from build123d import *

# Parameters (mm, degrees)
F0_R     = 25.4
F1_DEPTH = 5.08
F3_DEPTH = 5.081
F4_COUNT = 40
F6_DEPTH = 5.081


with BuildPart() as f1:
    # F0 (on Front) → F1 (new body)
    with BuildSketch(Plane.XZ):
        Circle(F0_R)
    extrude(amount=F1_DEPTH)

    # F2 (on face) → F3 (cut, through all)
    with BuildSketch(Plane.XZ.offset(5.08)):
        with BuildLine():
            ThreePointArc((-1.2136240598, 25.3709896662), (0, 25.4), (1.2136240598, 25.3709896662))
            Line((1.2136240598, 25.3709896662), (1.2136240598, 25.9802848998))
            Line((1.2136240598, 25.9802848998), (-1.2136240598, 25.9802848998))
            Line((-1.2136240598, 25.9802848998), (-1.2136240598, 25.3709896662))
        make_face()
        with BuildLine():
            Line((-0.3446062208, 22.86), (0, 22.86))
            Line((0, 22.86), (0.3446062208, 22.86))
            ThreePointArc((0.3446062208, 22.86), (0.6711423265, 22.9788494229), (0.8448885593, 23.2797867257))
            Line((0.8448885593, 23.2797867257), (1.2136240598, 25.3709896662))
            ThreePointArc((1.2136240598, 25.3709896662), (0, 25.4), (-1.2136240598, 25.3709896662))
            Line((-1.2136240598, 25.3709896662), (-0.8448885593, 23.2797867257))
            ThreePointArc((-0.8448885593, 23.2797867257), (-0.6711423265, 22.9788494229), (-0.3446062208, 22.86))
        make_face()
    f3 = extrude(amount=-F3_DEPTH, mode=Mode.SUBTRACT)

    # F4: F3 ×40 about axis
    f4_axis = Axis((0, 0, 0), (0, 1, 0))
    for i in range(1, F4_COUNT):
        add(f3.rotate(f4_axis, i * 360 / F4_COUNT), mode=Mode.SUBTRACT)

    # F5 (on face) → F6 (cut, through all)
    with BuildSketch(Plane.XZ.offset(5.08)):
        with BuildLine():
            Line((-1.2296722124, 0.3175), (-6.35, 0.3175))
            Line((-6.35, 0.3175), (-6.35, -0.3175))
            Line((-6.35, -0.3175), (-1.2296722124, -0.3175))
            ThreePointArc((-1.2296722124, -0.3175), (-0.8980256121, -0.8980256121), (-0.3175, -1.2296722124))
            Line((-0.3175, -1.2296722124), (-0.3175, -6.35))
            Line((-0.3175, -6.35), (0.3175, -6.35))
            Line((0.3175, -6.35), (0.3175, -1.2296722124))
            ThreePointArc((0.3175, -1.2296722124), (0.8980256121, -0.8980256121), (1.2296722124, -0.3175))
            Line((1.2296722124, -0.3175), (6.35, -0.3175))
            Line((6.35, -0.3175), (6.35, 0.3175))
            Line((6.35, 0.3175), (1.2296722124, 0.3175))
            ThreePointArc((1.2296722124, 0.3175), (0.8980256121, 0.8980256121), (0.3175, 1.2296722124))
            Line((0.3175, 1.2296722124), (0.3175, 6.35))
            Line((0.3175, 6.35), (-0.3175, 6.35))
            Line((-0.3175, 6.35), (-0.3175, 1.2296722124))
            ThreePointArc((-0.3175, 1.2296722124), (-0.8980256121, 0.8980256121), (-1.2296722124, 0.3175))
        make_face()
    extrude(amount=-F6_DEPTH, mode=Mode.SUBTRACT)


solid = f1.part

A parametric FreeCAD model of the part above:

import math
import FreeCAD as App
import Part
import Sketcher
Q = App.Units.Quantity

doc = App.newDocument("Part")
params = doc.addObject("Spreadsheet::Sheet", "Params")
for row, (alias, value) in enumerate([
    ("sketch1_diameter", "2 in"),
    ("pad1_length", "0.2 in"),
    ("sketch2_radius", "0.02 in"),
    ("sketch3_radius", "0.05 in"),
    ("sketch3_width", "0.025 in"),
], start=1):
    params.set(f"A{row}", alias)
    params.set(f"B{row}", "=" + value)
    params.setAlias(f"B{row}", alias)

body = doc.addObject("PartDesign::Body", "Body")

# Sketch on XZ plane
sketch1 = body.newObject("Sketcher::SketchObject", "Sketch")
sketch1.AttachmentSupport = (doc.getObject("XZ_Plane"), [""])
sketch1.MapMode = "FlatFace"
sketch1.addGeometry(Part.Circle(App.Vector(0, 0, 0), App.Vector(0, 0, 1), 25), False)
sketch1.addConstraint(Sketcher.Constraint("Coincident", 0, 3, -1, 1))
sketch1.addConstraint(Sketcher.Constraint("Diameter", 0, Q("2 in")))
sketch1.setExpression("Constraints[1]", "Params.sketch1_diameter")
pad1 = body.newObject("PartDesign::Pad", "Pad")
pad1.Profile = sketch1
pad1.setExpression("Length", "Params.pad1_length")

# Sketch on XZ plane
sketch2 = body.newObject("Sketcher::SketchObject", "Sketch001")
sketch2.AttachmentSupport = (doc.getObject("XZ_Plane"), [""])
sketch2.MapMode = "FlatFace"
sketch2.AttachmentOffset = App.Placement(App.Vector(0, 0, 0.2 * 25.4), App.Rotation())
sketch2.addGeometry(Part.LineSegment(App.Vector(1.2, 25.4, 0), App.Vector(1.2, 26, 0)), False)
sketch2.addGeometry(Part.LineSegment(App.Vector(1.2, 26, 0), App.Vector(-1.2, 26, 0)), False)
sketch2.addGeometry(Part.LineSegment(App.Vector(-1.2, 26, 0), App.Vector(-1.2, 25.4, 0)), False)
sketch2.addGeometry(Part.LineSegment(App.Vector(-1.2, 25.4, 0), App.Vector(-0.8, 23.3, 0)), False)
sketch2.addGeometry(Part.ArcOfCircle(Part.Circle(App.Vector(-0.3, 23.4, 0), App.Vector(0, 0, 1), 0.5), math.radians(-170), math.radians(-90)), False)
sketch2.addGeometry(Part.LineSegment(App.Vector(-0.3, 22.9, 0), App.Vector(0.3, 22.9, 0)), False)
sketch2.addGeometry(Part.ArcOfCircle(Part.Circle(App.Vector(0.3, 23.4, 0), App.Vector(0, 0, 1), 0.5), math.radians(-90), math.radians(-10)), False)
sketch2.addGeometry(Part.LineSegment(App.Vector(0.8, 23.3, 0), App.Vector(1.2, 25.4, 0)), False)
sketch2.addConstraint(Sketcher.Constraint("Coincident", 0, 2, 1, 1))
sketch2.addConstraint(Sketcher.Constraint("Coincident", 1, 2, 2, 1))
sketch2.addConstraint(Sketcher.Constraint("Coincident", 2, 2, 3, 1))
sketch2.addConstraint(Sketcher.Constraint("Tangent", 3, 2, 4, 1))
sketch2.addConstraint(Sketcher.Constraint("Tangent", 4, 2, 5, 1))
sketch2.addConstraint(Sketcher.Constraint("Tangent", 5, 2, 6, 1))
sketch2.addConstraint(Sketcher.Constraint("Tangent", 6, 2, 7, 1))
sketch2.addConstraint(Sketcher.Constraint("Coincident", 7, 2, 0, 1))
sketch2.addConstraint(Sketcher.Constraint("Vertical", 0))
sketch2.addConstraint(Sketcher.Constraint("Horizontal", 1))
sketch2.addConstraint(Sketcher.Constraint("Vertical", 2))
sketch2.addConstraint(Sketcher.Constraint("Horizontal", 5))
sketch2.addConstraint(Sketcher.Constraint("Equal", 4, 6))
sketch2.addConstraint(Sketcher.Constraint("Symmetric", 3, 2, 6, 2, -2))
sketch2.addConstraint(Sketcher.Constraint("Horizontal", 2, 2, 7, 2))
sketch2.addConstraint(Sketcher.Constraint("Radius", 4, Q("0.02 in")))
sketch2.addConstraint(Sketcher.Constraint("Angle", 3, Q("-80 deg")))
sketch2.addConstraint(Sketcher.Constraint("DistanceY", -1, 1, 4, 2, Q("0.9 in")))
sketch2.addConstraint(Sketcher.Constraint("DistanceX", 1, 2, 1, 1, Q("2.427248 mm")))
sketch2.addConstraint(Sketcher.Constraint("DistanceY", 3, 2, 1, 2, Q("2.700498 mm")))
sketch2.addConstraint(Sketcher.Constraint("DistanceX", 5, 1, 5, 2, Q("0.689212 mm")))
sketch2.setExpression("Constraints[15]", "Params.sketch2_radius")
pocket1 = body.newObject("PartDesign::Pocket", "Pocket")
pocket1.Profile = sketch2
pocket1.Type = "ThroughAll"
doc.recompute()

polarpattern = body.newObject("PartDesign::PolarPattern", "PolarPattern")
polarpattern.Originals = [pocket1]
polarpattern.Axis = (doc.getObject("Y_Axis"), [""])
polarpattern.Angle = 360
polarpattern.Occurrences = 40
body.Tip = polarpattern

# Sketch on XZ plane
sketch3 = body.newObject("Sketcher::SketchObject", "Sketch002")
sketch3.AttachmentSupport = (doc.getObject("XZ_Plane"), [""])
sketch3.MapMode = "FlatFace"
sketch3.AttachmentOffset = App.Placement(App.Vector(0, 0, 0.2 * 25.4), App.Rotation())
sketch3.addGeometry(Part.LineSegment(App.Vector(-1.2, 0.3, 0), App.Vector(-6.3, 0.3, 0)), False)
sketch3.addGeometry(Part.LineSegment(App.Vector(-6.3, 0.3, 0), App.Vector(-6.3, -0.3, 0)), False)
sketch3.addGeometry(Part.LineSegment(App.Vector(-6.3, -0.3, 0), App.Vector(-1.2, -0.3, 0)), False)
sketch3.addGeometry(Part.ArcOfCircle(Part.Circle(App.Vector(0, 0, 0), App.Vector(0, 0, 1), 1.3), math.radians(-166), math.radians(-104)), False)
sketch3.addGeometry(Part.LineSegment(App.Vector(-0.3, -1.2, 0), App.Vector(-0.3, -6.3, 0)), False)
sketch3.addGeometry(Part.LineSegment(App.Vector(-0.3, -6.3, 0), App.Vector(0.3, -6.3, 0)), False)
sketch3.addGeometry(Part.LineSegment(App.Vector(0.3, -6.3, 0), App.Vector(0.3, -1.2, 0)), False)
sketch3.addGeometry(Part.ArcOfCircle(Part.Circle(App.Vector(0, 0, 0), App.Vector(0, 0, 1), 1.3), math.radians(-76), math.radians(-14)), False)
sketch3.addGeometry(Part.LineSegment(App.Vector(1.2, -0.3, 0), App.Vector(6.3, -0.3, 0)), False)
sketch3.addGeometry(Part.LineSegment(App.Vector(6.3, -0.3, 0), App.Vector(6.3, 0.3, 0)), False)
sketch3.addGeometry(Part.LineSegment(App.Vector(6.3, 0.3, 0), App.Vector(1.2, 0.3, 0)), False)
sketch3.addGeometry(Part.ArcOfCircle(Part.Circle(App.Vector(0, 0, 0), App.Vector(0, 0, 1), 1.3), math.radians(14), math.radians(76)), False)
sketch3.addGeometry(Part.LineSegment(App.Vector(0.3, 1.2, 0), App.Vector(0.3, 6.3, 0)), False)
sketch3.addGeometry(Part.LineSegment(App.Vector(0.3, 6.3, 0), App.Vector(-0.3, 6.3, 0)), False)
sketch3.addGeometry(Part.LineSegment(App.Vector(-0.3, 6.3, 0), App.Vector(-0.3, 1.2, 0)), False)
sketch3.addGeometry(Part.ArcOfCircle(Part.Circle(App.Vector(0, 0, 0), App.Vector(0, 0, 1), 1.3), math.radians(104), math.radians(166)), False)
sketch3.addConstraint(Sketcher.Constraint("Coincident", 0, 2, 1, 1))
sketch3.addConstraint(Sketcher.Constraint("Coincident", 1, 2, 2, 1))
sketch3.addConstraint(Sketcher.Constraint("Coincident", 2, 2, 3, 1))
sketch3.addConstraint(Sketcher.Constraint("Coincident", 3, 2, 4, 1))
sketch3.addConstraint(Sketcher.Constraint("Coincident", 4, 2, 5, 1))
sketch3.addConstraint(Sketcher.Constraint("Coincident", 5, 2, 6, 1))
sketch3.addConstraint(Sketcher.Constraint("Coincident", 6, 2, 7, 1))
sketch3.addConstraint(Sketcher.Constraint("Coincident", 7, 2, 8, 1))
sketch3.addConstraint(Sketcher.Constraint("Coincident", 8, 2, 9, 1))
sketch3.addConstraint(Sketcher.Constraint("Coincident", 9, 2, 10, 1))
sketch3.addConstraint(Sketcher.Constraint("Coincident", 10, 2, 11, 1))
sketch3.addConstraint(Sketcher.Constraint("Coincident", 11, 2, 12, 1))
sketch3.addConstraint(Sketcher.Constraint("Coincident", 12, 2, 13, 1))
sketch3.addConstraint(Sketcher.Constraint("Coincident", 13, 2, 14, 1))
sketch3.addConstraint(Sketcher.Constraint("Coincident", 14, 2, 15, 1))
sketch3.addConstraint(Sketcher.Constraint("Coincident", 15, 2, 0, 1))
sketch3.addConstraint(Sketcher.Constraint("Horizontal", 0))
sketch3.addConstraint(Sketcher.Constraint("Vertical", 1))
sketch3.addConstraint(Sketcher.Constraint("Horizontal", 2))
sketch3.addConstraint(Sketcher.Constraint("Vertical", 4))
sketch3.addConstraint(Sketcher.Constraint("Horizontal", 5))
sketch3.addConstraint(Sketcher.Constraint("Vertical", 6))
sketch3.addConstraint(Sketcher.Constraint("Horizontal", 8))
sketch3.addConstraint(Sketcher.Constraint("Vertical", 9))
sketch3.addConstraint(Sketcher.Constraint("Horizontal", 10))
sketch3.addConstraint(Sketcher.Constraint("Vertical", 12))
sketch3.addConstraint(Sketcher.Constraint("Horizontal", 13))
sketch3.addConstraint(Sketcher.Constraint("Vertical", 14))
sketch3.addConstraint(Sketcher.Constraint("Coincident", 3, 3, -1, 1))
sketch3.addConstraint(Sketcher.Constraint("Coincident", 7, 3, -1, 1))
sketch3.addConstraint(Sketcher.Constraint("Coincident", 11, 3, -1, 1))
sketch3.addConstraint(Sketcher.Constraint("Coincident", 15, 3, -1, 1))
sketch3.addConstraint(Sketcher.Constraint("Equal", 3, 7))
sketch3.addConstraint(Sketcher.Constraint("Equal", 7, 11))
sketch3.addConstraint(Sketcher.Constraint("Equal", 11, 15))
sketch3.addConstraint(Sketcher.Constraint("Symmetric", 0, 2, 8, 2, -1, 1))
sketch3.addConstraint(Sketcher.Constraint("Symmetric", 4, 2, 12, 2, -1, 1))
sketch3.addConstraint(Sketcher.Constraint("Horizontal", 3, 2, 6, 2))
sketch3.addConstraint(Sketcher.Constraint("Horizontal", 2, 2, 7, 2))
sketch3.addConstraint(Sketcher.Constraint("Horizontal", 0, 2, 9, 2))
sketch3.addConstraint(Sketcher.Constraint("Horizontal", 11, 2, 14, 2))
sketch3.addConstraint(Sketcher.Constraint("Equal", 13, 1))
sketch3.addConstraint(Sketcher.Constraint("Equal", 10, 4))
sketch3.addConstraint(Sketcher.Constraint("Radius", 3, Q("0.05 in")))
sketch3.addConstraint(Sketcher.Constraint("DistanceX", 5, 1, 5, 2, Q("0.025 in")))
sketch3.addConstraint(Sketcher.Constraint("DistanceX", 0, 2, -1, 1, Q("0.25 in")))
sketch3.setExpression("Constraints[43]", "Params.sketch3_radius")
sketch3.setExpression("Constraints[44]", "Params.sketch3_width")
pocket2 = body.newObject("PartDesign::Pocket", "Pocket001")
pocket2.Profile = sketch3
pocket2.Type = "ThroughAll"

doc.recompute()
